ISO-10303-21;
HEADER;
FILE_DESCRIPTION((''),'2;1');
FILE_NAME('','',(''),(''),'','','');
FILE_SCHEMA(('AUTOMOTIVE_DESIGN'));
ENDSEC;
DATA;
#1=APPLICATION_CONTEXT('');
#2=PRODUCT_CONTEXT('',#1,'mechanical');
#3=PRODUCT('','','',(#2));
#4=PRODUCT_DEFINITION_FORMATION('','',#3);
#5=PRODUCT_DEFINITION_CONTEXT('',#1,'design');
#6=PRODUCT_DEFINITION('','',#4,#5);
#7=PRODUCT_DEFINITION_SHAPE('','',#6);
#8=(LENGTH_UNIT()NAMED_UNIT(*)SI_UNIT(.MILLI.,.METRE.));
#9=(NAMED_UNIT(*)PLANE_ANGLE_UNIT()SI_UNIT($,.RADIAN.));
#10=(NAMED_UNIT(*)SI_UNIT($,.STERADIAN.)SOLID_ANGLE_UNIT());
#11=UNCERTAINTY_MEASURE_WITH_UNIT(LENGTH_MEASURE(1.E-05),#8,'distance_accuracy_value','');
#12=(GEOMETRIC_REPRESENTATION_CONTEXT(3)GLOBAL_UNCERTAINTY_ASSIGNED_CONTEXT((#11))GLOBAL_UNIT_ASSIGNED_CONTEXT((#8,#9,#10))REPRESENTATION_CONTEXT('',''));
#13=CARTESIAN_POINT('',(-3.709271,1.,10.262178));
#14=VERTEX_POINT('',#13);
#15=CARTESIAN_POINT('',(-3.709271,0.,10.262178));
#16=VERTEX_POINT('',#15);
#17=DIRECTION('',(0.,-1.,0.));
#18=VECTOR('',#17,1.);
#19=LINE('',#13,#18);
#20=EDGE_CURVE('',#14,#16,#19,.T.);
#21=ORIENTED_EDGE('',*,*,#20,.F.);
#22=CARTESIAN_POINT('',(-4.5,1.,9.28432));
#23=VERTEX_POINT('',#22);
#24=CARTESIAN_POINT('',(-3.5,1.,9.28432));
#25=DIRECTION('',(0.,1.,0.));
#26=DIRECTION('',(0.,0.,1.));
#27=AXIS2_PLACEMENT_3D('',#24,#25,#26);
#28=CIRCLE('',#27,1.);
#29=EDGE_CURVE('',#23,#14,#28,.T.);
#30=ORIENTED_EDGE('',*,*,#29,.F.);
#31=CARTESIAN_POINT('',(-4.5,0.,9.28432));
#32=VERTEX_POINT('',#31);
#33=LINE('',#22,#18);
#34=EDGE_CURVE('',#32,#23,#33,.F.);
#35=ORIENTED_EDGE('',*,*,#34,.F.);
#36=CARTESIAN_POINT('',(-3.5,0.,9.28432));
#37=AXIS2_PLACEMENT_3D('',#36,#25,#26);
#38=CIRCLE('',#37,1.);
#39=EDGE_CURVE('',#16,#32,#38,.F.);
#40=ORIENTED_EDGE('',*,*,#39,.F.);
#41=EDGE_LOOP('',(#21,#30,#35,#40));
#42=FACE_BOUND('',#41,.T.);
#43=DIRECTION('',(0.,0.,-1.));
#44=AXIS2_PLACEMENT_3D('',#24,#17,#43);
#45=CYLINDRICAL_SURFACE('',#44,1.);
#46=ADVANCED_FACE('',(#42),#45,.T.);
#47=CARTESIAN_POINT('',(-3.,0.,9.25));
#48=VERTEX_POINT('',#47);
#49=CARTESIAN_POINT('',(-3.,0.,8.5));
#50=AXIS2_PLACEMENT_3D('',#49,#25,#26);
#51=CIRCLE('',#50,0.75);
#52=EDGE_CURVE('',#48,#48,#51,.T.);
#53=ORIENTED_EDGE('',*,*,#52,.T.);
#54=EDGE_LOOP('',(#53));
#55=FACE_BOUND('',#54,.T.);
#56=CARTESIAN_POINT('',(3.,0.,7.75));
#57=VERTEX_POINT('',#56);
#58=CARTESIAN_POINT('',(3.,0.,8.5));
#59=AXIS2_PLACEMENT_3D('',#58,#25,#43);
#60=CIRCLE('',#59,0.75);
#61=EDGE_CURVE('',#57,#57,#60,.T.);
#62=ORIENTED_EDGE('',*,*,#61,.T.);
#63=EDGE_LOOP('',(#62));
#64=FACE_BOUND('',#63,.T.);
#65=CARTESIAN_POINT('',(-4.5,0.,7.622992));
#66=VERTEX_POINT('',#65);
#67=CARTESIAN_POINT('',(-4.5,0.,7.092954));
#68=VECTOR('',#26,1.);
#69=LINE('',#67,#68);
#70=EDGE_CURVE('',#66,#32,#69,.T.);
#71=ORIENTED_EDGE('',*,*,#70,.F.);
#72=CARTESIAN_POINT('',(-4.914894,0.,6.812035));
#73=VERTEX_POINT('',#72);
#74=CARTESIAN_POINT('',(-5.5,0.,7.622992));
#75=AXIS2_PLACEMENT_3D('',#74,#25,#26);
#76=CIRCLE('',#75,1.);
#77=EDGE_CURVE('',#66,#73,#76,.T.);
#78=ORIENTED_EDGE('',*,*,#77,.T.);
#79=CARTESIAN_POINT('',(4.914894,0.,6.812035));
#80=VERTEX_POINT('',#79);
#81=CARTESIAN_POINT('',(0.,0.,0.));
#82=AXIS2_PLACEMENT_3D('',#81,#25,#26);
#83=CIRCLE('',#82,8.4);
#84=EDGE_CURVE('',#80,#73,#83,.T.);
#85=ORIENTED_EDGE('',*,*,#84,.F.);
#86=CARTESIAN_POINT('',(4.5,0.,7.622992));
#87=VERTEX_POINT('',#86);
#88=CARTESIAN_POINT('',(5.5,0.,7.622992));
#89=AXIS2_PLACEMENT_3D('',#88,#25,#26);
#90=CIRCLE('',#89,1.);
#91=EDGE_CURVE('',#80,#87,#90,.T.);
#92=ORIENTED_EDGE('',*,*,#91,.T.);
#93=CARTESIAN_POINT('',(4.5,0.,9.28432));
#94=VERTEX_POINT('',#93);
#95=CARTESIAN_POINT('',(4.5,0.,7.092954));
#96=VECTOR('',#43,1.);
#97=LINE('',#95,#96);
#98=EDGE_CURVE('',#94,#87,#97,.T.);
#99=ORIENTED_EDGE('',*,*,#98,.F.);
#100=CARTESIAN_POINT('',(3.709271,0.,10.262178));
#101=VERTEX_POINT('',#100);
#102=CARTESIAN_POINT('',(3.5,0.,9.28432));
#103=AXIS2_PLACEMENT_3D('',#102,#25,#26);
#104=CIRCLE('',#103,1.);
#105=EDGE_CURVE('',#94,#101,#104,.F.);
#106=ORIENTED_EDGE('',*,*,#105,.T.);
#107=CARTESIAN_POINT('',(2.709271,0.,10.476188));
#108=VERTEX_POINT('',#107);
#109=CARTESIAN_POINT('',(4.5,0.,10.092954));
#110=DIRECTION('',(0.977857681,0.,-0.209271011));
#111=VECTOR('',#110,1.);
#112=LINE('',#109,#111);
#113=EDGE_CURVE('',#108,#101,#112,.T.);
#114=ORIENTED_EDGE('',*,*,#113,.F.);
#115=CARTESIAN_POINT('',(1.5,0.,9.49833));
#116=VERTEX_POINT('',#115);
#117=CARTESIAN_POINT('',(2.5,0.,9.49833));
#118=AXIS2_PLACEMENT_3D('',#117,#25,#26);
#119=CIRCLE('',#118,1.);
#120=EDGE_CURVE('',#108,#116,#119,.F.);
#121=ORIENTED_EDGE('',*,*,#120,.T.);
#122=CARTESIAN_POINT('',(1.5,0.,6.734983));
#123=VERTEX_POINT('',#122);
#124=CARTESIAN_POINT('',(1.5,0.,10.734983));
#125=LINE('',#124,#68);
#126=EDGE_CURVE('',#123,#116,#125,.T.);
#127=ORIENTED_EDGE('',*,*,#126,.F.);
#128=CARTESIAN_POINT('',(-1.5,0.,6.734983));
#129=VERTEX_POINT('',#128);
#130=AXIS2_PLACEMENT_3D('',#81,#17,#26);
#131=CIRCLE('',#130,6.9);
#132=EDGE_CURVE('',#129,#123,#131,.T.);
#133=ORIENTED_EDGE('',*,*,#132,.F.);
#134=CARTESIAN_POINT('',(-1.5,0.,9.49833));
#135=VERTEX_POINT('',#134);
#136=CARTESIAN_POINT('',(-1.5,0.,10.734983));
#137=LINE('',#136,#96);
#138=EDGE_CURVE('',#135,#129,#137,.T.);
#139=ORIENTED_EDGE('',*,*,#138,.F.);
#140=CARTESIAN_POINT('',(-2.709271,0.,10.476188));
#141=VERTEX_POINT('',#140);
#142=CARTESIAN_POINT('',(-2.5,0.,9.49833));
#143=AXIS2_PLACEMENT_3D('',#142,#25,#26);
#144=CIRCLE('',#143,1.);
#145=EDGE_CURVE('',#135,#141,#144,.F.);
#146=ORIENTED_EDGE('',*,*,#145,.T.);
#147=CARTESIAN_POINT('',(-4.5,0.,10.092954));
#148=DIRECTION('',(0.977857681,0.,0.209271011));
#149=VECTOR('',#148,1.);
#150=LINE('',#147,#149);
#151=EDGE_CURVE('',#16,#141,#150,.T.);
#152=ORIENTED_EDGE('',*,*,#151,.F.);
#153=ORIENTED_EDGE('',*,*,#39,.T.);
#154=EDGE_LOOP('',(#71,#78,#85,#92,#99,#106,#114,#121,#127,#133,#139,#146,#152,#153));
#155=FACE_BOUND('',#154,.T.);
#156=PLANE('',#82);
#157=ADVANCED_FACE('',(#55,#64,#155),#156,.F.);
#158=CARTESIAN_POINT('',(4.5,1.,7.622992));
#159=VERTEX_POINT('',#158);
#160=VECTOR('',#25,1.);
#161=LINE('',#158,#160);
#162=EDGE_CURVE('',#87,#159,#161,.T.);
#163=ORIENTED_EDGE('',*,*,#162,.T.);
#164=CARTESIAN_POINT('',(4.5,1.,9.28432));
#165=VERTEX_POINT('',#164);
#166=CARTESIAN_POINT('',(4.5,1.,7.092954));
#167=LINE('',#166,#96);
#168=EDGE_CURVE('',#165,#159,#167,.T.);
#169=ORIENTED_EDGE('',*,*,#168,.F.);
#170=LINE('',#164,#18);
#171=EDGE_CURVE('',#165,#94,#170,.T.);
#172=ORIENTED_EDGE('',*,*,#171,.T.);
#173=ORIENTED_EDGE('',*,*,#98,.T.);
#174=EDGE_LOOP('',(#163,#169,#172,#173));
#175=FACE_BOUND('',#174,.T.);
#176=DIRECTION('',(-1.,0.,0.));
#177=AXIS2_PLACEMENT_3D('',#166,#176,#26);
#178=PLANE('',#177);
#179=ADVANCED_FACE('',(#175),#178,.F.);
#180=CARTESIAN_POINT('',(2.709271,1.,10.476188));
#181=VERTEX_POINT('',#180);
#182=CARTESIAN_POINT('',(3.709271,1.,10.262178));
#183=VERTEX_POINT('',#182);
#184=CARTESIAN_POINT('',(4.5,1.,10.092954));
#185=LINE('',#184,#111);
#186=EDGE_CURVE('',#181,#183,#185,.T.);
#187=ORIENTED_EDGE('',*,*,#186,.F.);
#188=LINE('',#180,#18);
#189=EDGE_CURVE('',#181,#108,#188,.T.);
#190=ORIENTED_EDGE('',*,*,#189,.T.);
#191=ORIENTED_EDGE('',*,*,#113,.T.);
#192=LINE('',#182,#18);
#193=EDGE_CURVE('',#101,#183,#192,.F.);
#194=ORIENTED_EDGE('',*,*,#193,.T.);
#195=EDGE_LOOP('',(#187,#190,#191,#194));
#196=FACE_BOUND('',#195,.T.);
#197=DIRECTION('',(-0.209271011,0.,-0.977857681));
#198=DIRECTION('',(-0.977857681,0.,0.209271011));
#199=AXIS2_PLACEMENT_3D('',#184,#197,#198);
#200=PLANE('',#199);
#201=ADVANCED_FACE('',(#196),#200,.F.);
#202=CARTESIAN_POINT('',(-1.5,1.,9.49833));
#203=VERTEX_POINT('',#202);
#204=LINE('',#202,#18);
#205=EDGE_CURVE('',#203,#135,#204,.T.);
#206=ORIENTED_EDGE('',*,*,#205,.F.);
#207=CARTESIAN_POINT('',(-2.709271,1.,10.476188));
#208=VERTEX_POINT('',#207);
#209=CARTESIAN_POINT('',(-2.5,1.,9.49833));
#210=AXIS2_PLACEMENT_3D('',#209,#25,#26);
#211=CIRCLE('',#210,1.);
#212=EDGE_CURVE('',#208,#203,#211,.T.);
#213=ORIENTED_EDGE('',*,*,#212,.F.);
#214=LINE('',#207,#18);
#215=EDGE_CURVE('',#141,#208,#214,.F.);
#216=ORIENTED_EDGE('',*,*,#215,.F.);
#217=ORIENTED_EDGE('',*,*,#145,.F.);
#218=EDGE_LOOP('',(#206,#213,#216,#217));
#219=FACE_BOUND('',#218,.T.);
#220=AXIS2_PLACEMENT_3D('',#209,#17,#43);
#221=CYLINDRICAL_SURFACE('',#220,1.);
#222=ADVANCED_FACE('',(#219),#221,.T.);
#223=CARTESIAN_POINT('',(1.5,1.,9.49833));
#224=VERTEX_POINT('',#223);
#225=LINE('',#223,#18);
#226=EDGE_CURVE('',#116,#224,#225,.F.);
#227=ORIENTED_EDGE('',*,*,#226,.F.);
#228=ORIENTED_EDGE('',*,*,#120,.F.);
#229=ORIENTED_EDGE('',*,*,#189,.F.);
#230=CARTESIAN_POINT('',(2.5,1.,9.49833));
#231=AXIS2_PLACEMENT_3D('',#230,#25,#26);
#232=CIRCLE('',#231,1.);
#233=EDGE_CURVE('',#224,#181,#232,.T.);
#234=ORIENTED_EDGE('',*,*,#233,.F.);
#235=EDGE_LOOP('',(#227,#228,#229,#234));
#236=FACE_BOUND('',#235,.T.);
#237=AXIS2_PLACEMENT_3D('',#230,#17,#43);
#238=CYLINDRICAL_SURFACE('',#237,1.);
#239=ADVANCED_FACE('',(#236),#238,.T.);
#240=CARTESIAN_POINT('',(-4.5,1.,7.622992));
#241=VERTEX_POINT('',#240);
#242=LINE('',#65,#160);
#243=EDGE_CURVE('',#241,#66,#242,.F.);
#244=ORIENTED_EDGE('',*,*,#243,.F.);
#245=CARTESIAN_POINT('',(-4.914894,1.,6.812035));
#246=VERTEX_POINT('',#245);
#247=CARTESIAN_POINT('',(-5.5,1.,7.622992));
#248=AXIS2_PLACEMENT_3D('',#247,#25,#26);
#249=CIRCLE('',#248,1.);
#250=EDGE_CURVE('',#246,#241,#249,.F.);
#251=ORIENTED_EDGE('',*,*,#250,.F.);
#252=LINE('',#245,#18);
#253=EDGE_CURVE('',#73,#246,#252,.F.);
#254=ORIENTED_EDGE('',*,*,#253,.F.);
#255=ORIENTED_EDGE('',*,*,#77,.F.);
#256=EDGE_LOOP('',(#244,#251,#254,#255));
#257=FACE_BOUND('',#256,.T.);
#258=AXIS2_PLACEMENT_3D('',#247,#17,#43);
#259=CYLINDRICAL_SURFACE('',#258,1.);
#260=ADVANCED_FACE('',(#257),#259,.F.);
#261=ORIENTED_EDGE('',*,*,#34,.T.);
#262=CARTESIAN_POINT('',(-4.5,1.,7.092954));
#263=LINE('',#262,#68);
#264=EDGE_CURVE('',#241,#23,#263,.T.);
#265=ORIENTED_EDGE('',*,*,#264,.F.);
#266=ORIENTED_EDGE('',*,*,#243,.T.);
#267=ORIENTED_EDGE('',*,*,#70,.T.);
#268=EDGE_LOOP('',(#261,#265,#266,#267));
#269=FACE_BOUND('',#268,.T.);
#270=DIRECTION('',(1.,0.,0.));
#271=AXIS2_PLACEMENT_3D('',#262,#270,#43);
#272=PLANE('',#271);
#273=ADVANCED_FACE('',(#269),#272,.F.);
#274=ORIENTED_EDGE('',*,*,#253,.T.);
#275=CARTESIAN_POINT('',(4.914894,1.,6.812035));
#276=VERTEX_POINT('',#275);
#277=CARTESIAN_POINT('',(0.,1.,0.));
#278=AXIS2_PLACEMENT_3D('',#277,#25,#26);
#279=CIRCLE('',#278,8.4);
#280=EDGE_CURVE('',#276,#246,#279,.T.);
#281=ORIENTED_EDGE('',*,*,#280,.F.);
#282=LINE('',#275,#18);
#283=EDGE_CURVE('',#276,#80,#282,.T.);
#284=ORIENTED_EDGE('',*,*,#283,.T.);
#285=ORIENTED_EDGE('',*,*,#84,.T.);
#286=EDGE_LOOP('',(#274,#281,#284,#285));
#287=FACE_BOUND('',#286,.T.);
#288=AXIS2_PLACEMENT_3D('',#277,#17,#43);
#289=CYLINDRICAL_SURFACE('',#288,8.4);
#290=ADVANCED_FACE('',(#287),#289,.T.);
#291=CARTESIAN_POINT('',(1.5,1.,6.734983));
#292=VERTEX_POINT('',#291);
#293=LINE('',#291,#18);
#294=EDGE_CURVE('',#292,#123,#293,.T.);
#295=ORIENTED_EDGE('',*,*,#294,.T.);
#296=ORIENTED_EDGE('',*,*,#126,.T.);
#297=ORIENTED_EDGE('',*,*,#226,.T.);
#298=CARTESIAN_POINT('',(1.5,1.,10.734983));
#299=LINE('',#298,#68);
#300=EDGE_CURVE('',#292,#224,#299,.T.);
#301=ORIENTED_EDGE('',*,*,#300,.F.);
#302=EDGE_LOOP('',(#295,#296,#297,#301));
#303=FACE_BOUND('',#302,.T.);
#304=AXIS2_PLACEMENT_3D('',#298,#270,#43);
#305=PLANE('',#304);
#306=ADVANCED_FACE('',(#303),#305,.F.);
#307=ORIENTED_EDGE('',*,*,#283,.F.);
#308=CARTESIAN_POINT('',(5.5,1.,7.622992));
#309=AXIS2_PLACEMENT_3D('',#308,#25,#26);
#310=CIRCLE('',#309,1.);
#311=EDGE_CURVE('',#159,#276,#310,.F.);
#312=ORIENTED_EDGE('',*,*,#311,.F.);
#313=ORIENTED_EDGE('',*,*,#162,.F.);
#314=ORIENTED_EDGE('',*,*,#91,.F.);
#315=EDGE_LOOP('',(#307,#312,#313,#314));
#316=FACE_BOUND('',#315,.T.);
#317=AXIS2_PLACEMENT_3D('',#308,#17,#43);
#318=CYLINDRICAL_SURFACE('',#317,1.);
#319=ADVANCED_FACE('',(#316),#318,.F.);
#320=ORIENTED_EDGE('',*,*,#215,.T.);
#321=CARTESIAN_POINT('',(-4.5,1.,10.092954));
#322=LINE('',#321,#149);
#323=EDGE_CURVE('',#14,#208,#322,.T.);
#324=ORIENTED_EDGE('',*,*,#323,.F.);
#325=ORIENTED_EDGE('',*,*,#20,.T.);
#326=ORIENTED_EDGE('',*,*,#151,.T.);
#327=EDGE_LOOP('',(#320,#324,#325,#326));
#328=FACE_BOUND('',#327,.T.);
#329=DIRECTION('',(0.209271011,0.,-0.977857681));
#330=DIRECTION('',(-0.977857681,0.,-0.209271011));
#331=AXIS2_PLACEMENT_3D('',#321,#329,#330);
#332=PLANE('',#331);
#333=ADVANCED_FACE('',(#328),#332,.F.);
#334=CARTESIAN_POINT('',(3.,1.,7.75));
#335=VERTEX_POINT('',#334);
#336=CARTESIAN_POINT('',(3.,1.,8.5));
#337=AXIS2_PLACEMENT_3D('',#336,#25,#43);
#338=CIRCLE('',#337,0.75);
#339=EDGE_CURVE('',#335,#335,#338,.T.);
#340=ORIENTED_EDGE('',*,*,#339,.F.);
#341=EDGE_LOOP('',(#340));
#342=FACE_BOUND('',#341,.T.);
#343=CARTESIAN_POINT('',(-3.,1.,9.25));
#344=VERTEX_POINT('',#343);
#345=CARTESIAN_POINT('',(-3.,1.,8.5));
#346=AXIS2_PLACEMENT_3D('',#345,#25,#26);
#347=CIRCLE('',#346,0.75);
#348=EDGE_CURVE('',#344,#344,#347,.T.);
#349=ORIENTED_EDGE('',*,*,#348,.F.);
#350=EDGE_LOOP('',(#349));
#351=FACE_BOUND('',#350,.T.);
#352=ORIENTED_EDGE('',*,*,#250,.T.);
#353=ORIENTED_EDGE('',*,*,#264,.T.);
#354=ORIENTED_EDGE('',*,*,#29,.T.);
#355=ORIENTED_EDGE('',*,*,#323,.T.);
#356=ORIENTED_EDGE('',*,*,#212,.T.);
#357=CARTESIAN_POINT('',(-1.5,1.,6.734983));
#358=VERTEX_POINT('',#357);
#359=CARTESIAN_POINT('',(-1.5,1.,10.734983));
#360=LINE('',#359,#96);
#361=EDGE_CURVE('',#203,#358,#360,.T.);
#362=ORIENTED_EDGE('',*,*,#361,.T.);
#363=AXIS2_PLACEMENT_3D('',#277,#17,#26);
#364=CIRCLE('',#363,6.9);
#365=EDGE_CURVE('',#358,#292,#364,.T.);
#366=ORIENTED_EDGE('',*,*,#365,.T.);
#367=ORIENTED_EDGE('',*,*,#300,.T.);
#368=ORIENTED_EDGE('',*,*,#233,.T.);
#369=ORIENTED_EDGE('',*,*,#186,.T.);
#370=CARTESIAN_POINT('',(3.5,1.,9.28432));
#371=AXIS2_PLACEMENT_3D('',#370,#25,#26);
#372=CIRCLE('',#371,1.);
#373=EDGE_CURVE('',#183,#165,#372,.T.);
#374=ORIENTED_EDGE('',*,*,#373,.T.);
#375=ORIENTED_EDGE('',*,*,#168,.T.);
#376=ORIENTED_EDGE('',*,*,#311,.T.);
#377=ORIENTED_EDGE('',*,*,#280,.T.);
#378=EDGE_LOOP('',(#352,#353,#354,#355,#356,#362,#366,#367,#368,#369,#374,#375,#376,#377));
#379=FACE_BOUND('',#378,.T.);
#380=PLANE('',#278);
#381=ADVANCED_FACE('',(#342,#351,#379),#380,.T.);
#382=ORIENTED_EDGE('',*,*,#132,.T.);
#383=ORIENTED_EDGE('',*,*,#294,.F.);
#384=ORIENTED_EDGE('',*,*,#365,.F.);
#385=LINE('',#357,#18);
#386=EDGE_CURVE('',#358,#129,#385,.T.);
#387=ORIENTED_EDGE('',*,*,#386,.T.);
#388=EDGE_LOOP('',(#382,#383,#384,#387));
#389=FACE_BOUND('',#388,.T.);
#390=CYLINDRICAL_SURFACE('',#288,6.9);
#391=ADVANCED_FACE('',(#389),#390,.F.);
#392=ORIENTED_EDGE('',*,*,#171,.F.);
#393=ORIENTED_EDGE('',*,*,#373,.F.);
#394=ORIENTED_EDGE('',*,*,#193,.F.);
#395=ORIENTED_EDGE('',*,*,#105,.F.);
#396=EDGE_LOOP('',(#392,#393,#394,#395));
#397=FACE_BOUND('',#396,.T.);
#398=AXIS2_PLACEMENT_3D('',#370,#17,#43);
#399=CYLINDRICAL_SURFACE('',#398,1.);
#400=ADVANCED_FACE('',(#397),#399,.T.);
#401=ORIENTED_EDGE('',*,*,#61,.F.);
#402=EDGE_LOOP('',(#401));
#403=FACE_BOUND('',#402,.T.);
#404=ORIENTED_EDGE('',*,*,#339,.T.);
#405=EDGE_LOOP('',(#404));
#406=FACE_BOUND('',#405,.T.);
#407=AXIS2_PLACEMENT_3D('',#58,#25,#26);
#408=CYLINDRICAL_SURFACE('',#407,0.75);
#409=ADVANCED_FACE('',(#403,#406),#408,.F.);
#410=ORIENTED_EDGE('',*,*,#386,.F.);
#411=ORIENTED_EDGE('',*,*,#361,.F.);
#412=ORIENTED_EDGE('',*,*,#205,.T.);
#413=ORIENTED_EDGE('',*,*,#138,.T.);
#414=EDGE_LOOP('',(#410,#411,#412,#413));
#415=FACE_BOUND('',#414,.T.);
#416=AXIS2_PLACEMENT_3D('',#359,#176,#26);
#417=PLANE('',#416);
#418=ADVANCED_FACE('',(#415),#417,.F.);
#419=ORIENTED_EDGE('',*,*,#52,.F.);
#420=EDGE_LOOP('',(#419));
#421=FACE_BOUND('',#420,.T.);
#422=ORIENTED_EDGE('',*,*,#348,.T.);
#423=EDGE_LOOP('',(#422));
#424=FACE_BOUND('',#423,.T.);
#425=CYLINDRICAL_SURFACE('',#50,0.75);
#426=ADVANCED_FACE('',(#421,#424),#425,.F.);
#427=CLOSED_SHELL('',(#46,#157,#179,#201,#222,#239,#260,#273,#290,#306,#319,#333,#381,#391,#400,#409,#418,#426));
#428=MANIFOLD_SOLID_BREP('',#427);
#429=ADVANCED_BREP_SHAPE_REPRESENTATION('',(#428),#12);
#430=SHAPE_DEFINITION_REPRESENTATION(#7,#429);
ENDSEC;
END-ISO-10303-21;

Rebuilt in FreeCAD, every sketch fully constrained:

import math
import FreeCAD as App
import Part
import Sketcher
Q = App.Units.Quantity


def edges_at(feature, points):
    """Names of the edges that pass closest to the given points."""
    edges = feature.Shape.Edges
    near = lambda p: min(range(len(edges)), key=lambda i: edges[i].distToShape(Part.Vertex(*p))[0])
    return sorted({f"Edge{near(p) + 1}" for p in points})

doc = App.newDocument("Part")
body = doc.addObject("PartDesign::Body", "Body")

# Sketch on XZ plane
sketch1 = doc.addObject("Sketcher::SketchObject", "Sketch")
body.addObject(sketch1)
sketch1.AttachmentSupport = (doc.XZ_Plane, [""])
sketch1.MapMode = "FlatFace"
sketch1.addGeometry(Part.LineSegment(App.Vector(-4.5, 7.1, 0), App.Vector(-4.5, 10.1, 0)), False)
sketch1.addGeometry(Part.LineSegment(App.Vector(-4.5, 10.1, 0), App.Vector(-1.5, 10.7, 0)), False)
sketch1.addGeometry(Part.LineSegment(App.Vector(-1.5, 10.7, 0), App.Vector(-1.5, 6.7, 0)), False)
sketch1.addGeometry(Part.ArcOfCircle(Part.Circle(App.Vector(0, 0, 0), App.Vector(0, 0, 1), 6.9), math.radians(103), math.radians(437)), False)
sketch1.addGeometry(Part.LineSegment(App.Vector(1.5, 6.7, 0), App.Vector(1.5, 10.7, 0)), False)
sketch1.addGeometry(Part.LineSegment(App.Vector(1.5, 10.7, 0), App.Vector(4.5, 10.1, 0)), False)
sketch1.addGeometry(Part.LineSegment(App.Vector(4.5, 10.1, 0), App.Vector(4.5, 7.1, 0)), False)
sketch1.addGeometry(Part.ArcOfCircle(Part.Circle(App.Vector(0, 0, 0), App.Vector(0, 0, 1), 8.4), math.radians(122), math.radians(418)), False)
sketch1.addConstraint(Sketcher.Constraint("Coincident", 0, 2, 1, 1))
sketch1.addConstraint(Sketcher.Constraint("Coincident", 1, 2, 2, 1))
sketch1.addConstraint(Sketcher.Constraint("Coincident", 2, 2, 3, 1))
sketch1.addConstraint(Sketcher.Constraint("Coincident", 3, 2, 4, 1))
sketch1.addConstraint(Sketcher.Constraint("Coincident", 4, 2, 5, 1))
sketch1.addConstraint(Sketcher.Constraint("Coincident", 5, 2, 6, 1))
sketch1.addConstraint(Sketcher.Constraint("Coincident", 6, 2, 7, 2))
sketch1.addConstraint(Sketcher.Constraint("Coincident", 7, 1, 0, 1))
sketch1.addConstraint(Sketcher.Constraint("Vertical", 0))
sketch1.addConstraint(Sketcher.Constraint("Vertical", 2))
sketch1.addConstraint(Sketcher.Constraint("Vertical", 4))
sketch1.addConstraint(Sketcher.Constraint("Vertical", 6))
sketch1.addConstraint(Sketcher.Constraint("Coincident", 3, 3, -1, 1))
sketch1.addConstraint(Sketcher.Constraint("Coincident", 7, 3, -1, 1))
sketch1.addConstraint(Sketcher.Constraint("Symmetric", 1, 2, 4, 2, -2))
sketch1.addConstraint(Sketcher.Constraint("Symmetric", 0, 2, 5, 2, -2))
sketch1.addConstraint(Sketcher.Constraint("Radius", 3, Q("6.9 mm")))
sketch1.addConstraint(Sketcher.Constraint("Radius", 7, Q("8.4 mm")))
sketch1.addConstraint(Sketcher.Constraint("DistanceY", 0, 1, 0, 2, Q("3 mm")))
sketch1.addConstraint(Sketcher.Constraint("DistanceY", 2, 2, 2, 1, Q("4 mm")))
sketch1.addConstraint(Sketcher.Constraint("DistanceX", 0, 2, 1, 2, Q("3 mm")))
sketch1.addConstraint(Sketcher.Constraint("DistanceX", 2, 2, 3, 2, Q("3 mm")))
pad1 = doc.addObject("PartDesign::Pad", "Pad")
body.addObject(pad1)
pad1.Profile = sketch1
pad1.Length = 1
pad1.Reversed = True

# Sketch on XZ plane
sketch2 = doc.addObject("Sketcher::SketchObject", "Sketch001")
body.addObject(sketch2)
sketch2.AttachmentSupport = (doc.XZ_Plane, [""])
sketch2.MapMode = "FlatFace"
sketch2.AttachmentOffset = App.Placement(App.Vector(0, 0, -1), App.Rotation())
sketch2.addGeometry(Part.Circle(App.Vector(-3, 8.5, 0), App.Vector(0, 0, 1), 0.8), False)
sketch2.addGeometry(Part.Circle(App.Vector(3, 8.5, 0), App.Vector(0, 0, 1), 0.8), False)
sketch2.addConstraint(Sketcher.Constraint("Equal", 0, 1))
sketch2.addConstraint(Sketcher.Constraint("Symmetric", 0, 3, 1, 3, -2))
sketch2.addConstraint(Sketcher.Constraint("Diameter", 0, Q("1.5 mm")))
sketch2.addConstraint(Sketcher.Constraint("DistanceX", 0, 3, -1, 1, Q("3 mm")))
sketch2.addConstraint(Sketcher.Constraint("DistanceY", -1, 1, 0, 3, Q("8.5 mm")))
pocket1 = doc.addObject("PartDesign::Pocket", "Pocket")
body.addObject(pocket1)
pocket1.Profile = sketch2
pocket1.Type = "ThroughAll"
pocket1.Reversed = True
doc.recompute()

fillet = doc.addObject("PartDesign::Fillet", "Fillet")
body.addObject(fillet)
fillet.Base = (pocket1, edges_at(pocket1, [
    (4.5, 0.5, 7.093),
    (4.5, 0.5, 10.093),
    (1.5, 0.5, 10.735),
    (-1.5, 0.5, 10.735),
    (-4.5, 0.5, 10.093),
    (-4.5, 0.5, 7.093),
]))
fillet.Radius = 1

doc.recompute()
